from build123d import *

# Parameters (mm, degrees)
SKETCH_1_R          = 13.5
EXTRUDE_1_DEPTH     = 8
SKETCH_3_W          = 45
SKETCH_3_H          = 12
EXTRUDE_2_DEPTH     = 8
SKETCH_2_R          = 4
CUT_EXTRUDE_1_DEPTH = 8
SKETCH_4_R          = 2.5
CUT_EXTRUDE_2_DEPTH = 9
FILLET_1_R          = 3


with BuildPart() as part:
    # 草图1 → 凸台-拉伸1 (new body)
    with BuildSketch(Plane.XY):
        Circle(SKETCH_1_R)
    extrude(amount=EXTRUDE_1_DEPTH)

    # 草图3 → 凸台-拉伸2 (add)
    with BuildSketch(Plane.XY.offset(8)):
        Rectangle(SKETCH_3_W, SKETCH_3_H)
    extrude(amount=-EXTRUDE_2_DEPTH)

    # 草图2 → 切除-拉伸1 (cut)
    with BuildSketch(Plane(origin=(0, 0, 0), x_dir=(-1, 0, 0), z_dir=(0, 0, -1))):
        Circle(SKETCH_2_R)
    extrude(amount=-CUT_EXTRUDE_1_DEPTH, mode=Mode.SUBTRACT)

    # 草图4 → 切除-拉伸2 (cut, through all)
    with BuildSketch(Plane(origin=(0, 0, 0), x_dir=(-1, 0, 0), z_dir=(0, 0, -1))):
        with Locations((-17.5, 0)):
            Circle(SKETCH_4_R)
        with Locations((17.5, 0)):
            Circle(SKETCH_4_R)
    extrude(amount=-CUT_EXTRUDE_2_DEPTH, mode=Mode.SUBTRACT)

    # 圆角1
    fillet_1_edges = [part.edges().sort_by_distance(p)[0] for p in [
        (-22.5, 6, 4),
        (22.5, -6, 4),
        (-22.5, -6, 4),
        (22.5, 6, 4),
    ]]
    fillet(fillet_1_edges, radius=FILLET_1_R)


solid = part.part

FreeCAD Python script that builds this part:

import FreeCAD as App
import Part
import Sketcher
Q = App.Units.Quantity


def edges_at(feature, points):
    """Names of the edges that pass closest to the given points."""
    edges = feature.Shape.Edges
    near = lambda p: min(range(len(edges)), key=lambda i: edges[i].distToShape(Part.Vertex(*p))[0])
    return sorted({f"Edge{near(p) + 1}" for p in points})


def add_polygon(sketch, points):
    """Adds a closed chain of lines whose ends are joined by coincident constraints."""
    first, n = sketch.GeometryCount, len(points)
    for a, b in zip(points, points[1:] + points[:1]):
        sketch.addGeometry(Part.LineSegment(App.Vector(*a, 0), App.Vector(*b, 0)), False)
    for i in range(n):
        sketch.addConstraint(Sketcher.Constraint("Coincident", first + i, 2, first + (i + 1) % n, 1))

doc = App.newDocument("Part")
params = doc.addObject("Spreadsheet::Sheet", "Params")
for row, (alias, value) in enumerate([
    ("sketch1_diameter", "27 mm"),
    ("pad1_length", "8 mm"),
    ("sketch2_width", "45 mm"),
    ("sketch2_height", "12 mm"),
    ("pad2_length", "8 mm"),
    ("sketch3_diameter", "8 mm"),
    ("pocket1_length", "8 mm"),
    ("sketch4_diameter", "5 mm"),
    ("fillet_radius", "3 mm"),
], start=1):
    params.set(f"A{row}", alias)
    params.set(f"B{row}", "=" + value)
    params.setAlias(f"B{row}", alias)

body = doc.addObject("PartDesign::Body", "Body")

sketch1 = body.newObject("Sketcher::SketchObject", "Sketch")
sketch1.AttachmentSupport = (doc.getObject("XY_Plane"), [""])
sketch1.MapMode = "FlatFace"
sketch1.addGeometry(Part.Circle(App.Vector(0, 0, 0), App.Vector(0, 0, 1), 13.5), False)
sketch1.addConstraint([
    Sketcher.Constraint("Coincident", 0, 3, -1, 1),
    Sketcher.Constraint("Diameter", 0, Q("27 mm")),
])
sketch1.setExpression("Constraints[1]", "Params.sketch1_diameter")
pad1 = body.newObject("PartDesign::Pad", "Pad")
pad1.Profile = sketch1
pad1.setExpression("Length", "Params.pad1_length")

sketch2 = body.newObject("Sketcher::SketchObject", "Sketch001")
sketch2.AttachmentSupport = (doc.getObject("XY_Plane"), [""])
sketch2.MapMode = "FlatFace"
sketch2.AttachmentOffset = App.Placement(App.Vector(0, 0, 8), App.Rotation())
add_polygon(sketch2, [(-22.5, 6), (-22.5, -6), (22.5, -6), (22.5, 6)])
sketch2.addConstraint([
    Sketcher.Constraint("Vertical", 0),
    Sketcher.Constraint("Horizontal", 1),
    Sketcher.Constraint("Vertical", 2),
    Sketcher.Constraint("Horizontal", 3),
    Sketcher.Constraint("Symmetric", 0, 2, 2, 2, -1, 1),
    Sketcher.Constraint("DistanceX", 1, 1, 1, 2, Q("45 mm")),
    Sketcher.Constraint("DistanceY", 0, 2, 0, 1, Q("12 mm")),
])
sketch2.setExpression("Constraints[9]", "Params.sketch2_width")
sketch2.setExpression("Constraints[10]", "Params.sketch2_height")
pad2 = body.newObject("PartDesign::Pad", "Pad001")
pad2.Profile = sketch2
pad2.setExpression("Length", "Params.pad2_length")
pad2.Reversed = True

sketch3 = body.newObject("Sketcher::SketchObject", "Sketch002")
sketch3.AttachmentSupport = (doc.getObject("XY_Plane"), [""])
sketch3.MapMode = "FlatFace"
sketch3.addGeometry(Part.Circle(App.Vector(0, 0, 0), App.Vector(0, 0, 1), 4), False)
sketch3.addConstraint([
    Sketcher.Constraint("Coincident", 0, 3, -1, 1),
    Sketcher.Constraint("Diameter", 0, Q("8 mm")),
])
sketch3.setExpression("Constraints[1]", "Params.sketch3_diameter")
pocket1 = body.newObject("PartDesign::Pocket", "Pocket")
pocket1.Profile = sketch3
pocket1.setExpression("Length", "Params.pocket1_length")
pocket1.Reversed = True

sketch4 = body.newObject("Sketcher::SketchObject", "Sketch003")
sketch4.AttachmentSupport = (doc.getObject("XY_Plane"), [""])
sketch4.MapMode = "FlatFace"
sketch4.addGeometry([
    Part.Circle(App.Vector(17.5, 0, 0), App.Vector(0, 0, 1), 2.5),
    Part.Circle(App.Vector(-17.5, 0, 0), App.Vector(0, 0, 1), 2.5),
], False)
sketch4.addConstraint([
    Sketcher.Constraint("Equal", 0, 1),
    Sketcher.Constraint("Symmetric", 0, 3, 1, 3, -1, 1),
    Sketcher.Constraint("PointOnObject", 0, 3, -1),
    Sketcher.Constraint("Diameter", 0, Q("5 mm")),
    Sketcher.Constraint("DistanceX", 1, 3, 0, 3, Q("35 mm")),
])
sketch4.setExpression("Constraints[3]", "Params.sketch4_diameter")
pocket2 = body.newObject("PartDesign::Pocket", "Pocket001")
pocket2.Profile = sketch4
pocket2.Type = "ThroughAll"
pocket2.Reversed = True
doc.recompute()

fillet = body.newObject("PartDesign::Fillet", "Fillet")
fillet.Base = (pocket2, edges_at(pocket2, [
    (-22.5, 6, 4),
    (22.5, -6, 4),
    (-22.5, -6, 4),
    (22.5, 6, 4),
]))
fillet.setExpression("Radius", "Params.fillet_radius")

doc.recompute()
